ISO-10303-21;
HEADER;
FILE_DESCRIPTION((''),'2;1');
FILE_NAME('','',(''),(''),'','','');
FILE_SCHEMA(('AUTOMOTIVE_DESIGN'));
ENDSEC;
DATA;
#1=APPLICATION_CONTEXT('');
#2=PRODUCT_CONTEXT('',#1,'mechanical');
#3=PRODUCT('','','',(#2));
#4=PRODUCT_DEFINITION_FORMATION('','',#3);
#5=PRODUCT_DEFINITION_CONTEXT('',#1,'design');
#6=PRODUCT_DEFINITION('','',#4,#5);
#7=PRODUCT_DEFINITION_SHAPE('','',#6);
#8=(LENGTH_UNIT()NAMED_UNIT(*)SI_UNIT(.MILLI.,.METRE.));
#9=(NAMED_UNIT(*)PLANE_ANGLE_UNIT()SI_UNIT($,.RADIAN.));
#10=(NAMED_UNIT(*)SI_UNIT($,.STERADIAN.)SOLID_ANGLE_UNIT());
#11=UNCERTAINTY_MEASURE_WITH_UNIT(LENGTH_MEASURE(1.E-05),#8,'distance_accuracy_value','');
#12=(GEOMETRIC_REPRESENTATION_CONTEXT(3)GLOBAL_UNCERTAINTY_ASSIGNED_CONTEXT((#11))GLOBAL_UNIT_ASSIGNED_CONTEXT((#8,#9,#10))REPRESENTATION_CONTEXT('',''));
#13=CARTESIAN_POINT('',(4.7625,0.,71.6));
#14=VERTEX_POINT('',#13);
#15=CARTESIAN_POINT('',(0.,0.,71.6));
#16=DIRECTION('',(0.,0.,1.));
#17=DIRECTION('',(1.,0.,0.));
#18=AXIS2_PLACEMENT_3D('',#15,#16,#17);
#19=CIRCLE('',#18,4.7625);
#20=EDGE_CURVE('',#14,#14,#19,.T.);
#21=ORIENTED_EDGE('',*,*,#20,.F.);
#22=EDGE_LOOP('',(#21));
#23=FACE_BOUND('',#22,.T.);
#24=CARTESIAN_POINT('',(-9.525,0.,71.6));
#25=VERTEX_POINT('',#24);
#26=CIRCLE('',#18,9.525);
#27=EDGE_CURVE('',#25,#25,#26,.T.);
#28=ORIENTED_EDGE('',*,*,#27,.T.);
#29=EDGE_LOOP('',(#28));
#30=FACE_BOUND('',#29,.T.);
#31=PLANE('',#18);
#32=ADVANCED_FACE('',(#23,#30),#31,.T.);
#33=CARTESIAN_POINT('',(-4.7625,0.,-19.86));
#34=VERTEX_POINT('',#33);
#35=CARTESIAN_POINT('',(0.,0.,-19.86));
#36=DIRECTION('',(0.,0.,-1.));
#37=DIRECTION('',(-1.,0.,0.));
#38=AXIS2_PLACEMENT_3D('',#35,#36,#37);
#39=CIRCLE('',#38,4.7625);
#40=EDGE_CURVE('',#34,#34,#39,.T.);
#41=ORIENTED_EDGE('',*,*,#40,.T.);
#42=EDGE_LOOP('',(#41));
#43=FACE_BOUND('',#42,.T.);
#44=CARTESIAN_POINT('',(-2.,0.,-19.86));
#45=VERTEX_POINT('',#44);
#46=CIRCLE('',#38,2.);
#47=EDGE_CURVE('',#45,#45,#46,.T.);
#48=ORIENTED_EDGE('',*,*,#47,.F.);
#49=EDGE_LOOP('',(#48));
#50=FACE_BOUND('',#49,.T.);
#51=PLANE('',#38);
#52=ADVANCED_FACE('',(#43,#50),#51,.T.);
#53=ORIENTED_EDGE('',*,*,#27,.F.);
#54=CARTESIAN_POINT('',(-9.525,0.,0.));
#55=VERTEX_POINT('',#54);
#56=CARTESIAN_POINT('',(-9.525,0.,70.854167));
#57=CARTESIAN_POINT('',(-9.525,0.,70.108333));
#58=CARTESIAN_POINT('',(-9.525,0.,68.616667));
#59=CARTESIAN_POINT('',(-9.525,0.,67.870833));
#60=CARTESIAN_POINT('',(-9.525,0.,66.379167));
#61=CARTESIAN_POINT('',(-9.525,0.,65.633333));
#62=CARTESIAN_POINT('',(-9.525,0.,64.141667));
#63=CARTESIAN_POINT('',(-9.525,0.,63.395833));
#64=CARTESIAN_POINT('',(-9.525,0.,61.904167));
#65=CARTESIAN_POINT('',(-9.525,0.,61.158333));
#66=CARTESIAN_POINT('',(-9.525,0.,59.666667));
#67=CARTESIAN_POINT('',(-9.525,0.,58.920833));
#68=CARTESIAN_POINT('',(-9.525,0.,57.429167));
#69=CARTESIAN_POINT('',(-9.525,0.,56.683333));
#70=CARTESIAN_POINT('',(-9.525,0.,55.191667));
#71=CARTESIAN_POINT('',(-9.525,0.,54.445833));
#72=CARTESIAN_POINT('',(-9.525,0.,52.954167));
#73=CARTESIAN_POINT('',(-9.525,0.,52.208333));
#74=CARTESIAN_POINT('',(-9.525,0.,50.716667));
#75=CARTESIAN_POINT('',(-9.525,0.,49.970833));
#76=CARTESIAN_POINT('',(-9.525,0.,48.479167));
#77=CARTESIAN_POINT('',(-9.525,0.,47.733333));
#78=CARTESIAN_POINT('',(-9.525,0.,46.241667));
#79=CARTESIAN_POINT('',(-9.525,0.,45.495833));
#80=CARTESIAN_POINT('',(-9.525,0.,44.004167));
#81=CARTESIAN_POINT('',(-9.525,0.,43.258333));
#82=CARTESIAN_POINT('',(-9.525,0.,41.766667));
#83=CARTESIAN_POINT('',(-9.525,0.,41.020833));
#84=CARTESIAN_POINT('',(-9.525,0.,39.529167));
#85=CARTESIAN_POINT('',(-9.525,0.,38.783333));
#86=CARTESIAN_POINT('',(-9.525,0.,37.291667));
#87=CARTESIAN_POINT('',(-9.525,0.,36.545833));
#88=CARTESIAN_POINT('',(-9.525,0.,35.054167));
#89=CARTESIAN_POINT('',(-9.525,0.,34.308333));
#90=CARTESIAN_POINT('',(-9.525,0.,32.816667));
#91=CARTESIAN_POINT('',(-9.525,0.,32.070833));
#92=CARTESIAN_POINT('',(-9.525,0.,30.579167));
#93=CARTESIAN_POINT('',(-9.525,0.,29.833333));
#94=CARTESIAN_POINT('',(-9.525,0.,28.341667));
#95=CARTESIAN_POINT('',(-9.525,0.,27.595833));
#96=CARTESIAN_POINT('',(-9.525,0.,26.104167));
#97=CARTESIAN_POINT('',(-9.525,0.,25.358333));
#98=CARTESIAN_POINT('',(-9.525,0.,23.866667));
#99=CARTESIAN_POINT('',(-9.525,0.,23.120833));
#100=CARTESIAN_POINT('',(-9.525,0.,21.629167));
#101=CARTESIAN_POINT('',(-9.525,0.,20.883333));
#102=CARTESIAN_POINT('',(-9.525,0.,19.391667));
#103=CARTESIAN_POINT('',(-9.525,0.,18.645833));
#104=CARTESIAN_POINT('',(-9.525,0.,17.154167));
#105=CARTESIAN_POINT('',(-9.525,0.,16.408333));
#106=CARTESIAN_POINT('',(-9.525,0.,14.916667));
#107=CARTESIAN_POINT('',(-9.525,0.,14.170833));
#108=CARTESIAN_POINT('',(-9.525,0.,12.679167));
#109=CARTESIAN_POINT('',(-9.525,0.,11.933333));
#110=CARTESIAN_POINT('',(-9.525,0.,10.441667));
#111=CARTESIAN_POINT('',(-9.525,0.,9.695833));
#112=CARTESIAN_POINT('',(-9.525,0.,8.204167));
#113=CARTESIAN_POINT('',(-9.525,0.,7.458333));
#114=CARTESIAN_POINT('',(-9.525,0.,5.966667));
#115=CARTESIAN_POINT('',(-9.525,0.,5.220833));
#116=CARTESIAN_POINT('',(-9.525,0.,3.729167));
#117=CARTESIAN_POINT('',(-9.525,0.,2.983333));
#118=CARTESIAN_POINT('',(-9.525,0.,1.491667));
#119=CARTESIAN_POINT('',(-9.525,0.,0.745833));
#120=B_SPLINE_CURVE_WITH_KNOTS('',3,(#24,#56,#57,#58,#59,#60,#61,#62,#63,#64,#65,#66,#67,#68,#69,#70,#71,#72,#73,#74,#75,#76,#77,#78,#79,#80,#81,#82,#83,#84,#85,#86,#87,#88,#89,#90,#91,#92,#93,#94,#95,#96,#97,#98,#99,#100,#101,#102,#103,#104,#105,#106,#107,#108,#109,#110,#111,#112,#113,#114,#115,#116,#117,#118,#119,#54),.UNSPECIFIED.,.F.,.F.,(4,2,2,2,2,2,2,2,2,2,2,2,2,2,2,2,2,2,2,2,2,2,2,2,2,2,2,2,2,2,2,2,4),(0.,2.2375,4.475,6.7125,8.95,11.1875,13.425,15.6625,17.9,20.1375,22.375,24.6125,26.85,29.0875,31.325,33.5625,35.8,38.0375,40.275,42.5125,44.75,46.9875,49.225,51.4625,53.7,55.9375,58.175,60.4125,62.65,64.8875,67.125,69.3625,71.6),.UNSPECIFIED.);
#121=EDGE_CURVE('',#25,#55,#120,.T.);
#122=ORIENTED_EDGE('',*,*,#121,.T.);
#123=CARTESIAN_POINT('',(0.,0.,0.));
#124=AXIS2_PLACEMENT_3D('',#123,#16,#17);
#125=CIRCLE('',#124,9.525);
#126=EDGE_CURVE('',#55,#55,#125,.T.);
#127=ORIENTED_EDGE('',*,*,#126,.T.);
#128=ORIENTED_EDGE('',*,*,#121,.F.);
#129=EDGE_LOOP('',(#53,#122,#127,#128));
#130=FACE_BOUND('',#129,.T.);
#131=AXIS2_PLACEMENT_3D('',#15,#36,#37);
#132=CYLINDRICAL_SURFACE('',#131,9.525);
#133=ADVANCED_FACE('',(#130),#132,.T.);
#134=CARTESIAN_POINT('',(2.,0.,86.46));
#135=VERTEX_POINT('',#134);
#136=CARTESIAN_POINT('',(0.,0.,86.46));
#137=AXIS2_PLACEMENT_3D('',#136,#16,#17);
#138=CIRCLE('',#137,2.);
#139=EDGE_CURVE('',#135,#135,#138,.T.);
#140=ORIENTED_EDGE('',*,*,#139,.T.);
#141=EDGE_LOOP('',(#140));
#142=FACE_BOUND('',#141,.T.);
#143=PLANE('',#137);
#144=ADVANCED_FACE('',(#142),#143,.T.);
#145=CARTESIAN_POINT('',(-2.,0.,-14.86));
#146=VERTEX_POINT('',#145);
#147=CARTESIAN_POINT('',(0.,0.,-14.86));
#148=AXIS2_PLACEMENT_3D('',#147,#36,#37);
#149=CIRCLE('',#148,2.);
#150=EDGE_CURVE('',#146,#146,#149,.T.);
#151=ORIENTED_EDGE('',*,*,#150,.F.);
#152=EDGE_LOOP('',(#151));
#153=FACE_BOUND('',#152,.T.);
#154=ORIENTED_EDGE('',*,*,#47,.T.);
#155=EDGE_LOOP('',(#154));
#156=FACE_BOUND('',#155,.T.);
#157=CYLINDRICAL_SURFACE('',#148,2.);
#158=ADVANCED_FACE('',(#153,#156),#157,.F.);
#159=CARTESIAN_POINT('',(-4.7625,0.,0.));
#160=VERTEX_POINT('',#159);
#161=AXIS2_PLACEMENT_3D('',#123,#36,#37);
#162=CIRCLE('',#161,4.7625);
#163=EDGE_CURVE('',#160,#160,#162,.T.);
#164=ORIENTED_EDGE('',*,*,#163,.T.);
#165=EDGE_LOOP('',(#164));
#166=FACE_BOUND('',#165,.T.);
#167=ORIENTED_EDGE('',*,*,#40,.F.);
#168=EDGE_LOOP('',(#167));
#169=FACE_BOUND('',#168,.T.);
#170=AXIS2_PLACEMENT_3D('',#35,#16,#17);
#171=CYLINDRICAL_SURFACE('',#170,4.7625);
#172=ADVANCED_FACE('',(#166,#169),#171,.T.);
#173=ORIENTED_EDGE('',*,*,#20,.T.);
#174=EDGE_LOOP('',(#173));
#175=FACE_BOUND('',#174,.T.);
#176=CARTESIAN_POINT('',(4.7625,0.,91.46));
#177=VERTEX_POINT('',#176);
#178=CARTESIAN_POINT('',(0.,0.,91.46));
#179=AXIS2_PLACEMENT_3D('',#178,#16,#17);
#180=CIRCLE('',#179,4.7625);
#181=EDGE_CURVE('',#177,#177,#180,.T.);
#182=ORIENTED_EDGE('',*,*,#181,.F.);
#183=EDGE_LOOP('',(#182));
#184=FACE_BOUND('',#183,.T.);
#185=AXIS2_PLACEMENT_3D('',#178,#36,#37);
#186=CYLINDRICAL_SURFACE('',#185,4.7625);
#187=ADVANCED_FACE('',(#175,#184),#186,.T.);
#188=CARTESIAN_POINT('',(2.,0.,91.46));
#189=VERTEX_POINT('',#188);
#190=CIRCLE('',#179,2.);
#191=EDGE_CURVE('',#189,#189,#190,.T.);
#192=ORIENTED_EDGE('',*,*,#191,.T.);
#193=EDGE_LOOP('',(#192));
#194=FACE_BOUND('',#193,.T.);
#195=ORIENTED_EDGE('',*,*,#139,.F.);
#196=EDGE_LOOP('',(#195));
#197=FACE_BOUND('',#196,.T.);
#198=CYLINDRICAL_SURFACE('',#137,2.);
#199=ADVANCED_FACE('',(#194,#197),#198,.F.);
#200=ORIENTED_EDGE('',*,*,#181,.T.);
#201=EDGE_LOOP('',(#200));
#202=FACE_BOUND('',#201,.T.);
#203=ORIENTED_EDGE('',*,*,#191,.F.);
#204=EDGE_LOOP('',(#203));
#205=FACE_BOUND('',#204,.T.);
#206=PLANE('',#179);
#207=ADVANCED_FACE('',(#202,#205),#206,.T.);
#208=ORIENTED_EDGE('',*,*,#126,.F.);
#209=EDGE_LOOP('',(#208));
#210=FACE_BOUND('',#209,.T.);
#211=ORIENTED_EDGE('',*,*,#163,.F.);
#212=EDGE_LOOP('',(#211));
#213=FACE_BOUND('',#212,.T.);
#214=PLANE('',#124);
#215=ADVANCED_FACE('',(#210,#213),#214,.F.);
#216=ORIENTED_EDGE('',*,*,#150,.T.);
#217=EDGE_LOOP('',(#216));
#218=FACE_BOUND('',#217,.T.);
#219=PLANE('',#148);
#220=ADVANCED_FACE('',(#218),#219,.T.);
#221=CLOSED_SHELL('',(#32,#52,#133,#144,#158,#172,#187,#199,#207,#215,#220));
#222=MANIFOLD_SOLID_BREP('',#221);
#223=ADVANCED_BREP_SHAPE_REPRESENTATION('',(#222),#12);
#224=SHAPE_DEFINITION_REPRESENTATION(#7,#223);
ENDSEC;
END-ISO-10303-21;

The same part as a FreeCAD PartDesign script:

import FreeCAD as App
import Part
import Sketcher

doc = App.newDocument("Part")
params = doc.addObject("Spreadsheet::Sheet", "Params")
for row, (alias, value) in enumerate([
    ("sketch1_diameter", "19.05 mm"),
    ("pad1_length", "71.6 mm"),
    ("pad2_length", "19.86 mm"),
    ("pad3_length", "19.86 mm"),
    ("sketch4_diameter", "4 mm"),
    ("pocket1_length", "5 mm"),
    ("sketch5_diameter", "4 mm"),
    ("pocket2_length", "5 mm"),
], start=1):
    params.set(f"A{row}", alias)
    params.set(f"B{row}", "=" + value)
    params.setAlias(f"B{row}", alias)

body = doc.addObject("PartDesign::Body", "Body")

# Sketch on XY plane
sketch1 = body.newObject("Sketcher::SketchObject", "Sketch")
sketch1.AttachmentSupport = (doc.getObject("XY_Plane"), [""])
sketch1.MapMode = "FlatFace"
sketch1.addGeometry(Part.Circle(App.Vector(0, 0, 0), App.Vector(0, 0, 1), 10), False)
sketch1.addConstraint(Sketcher.Constraint("Coincident", 0, 3, -1, 1))
sketch1.addConstraint(Sketcher.Constraint("Diameter", 0, 19.05))
sketch1.setExpression("Constraints[1]", "Params.sketch1_diameter")
pad1 = body.newObject("PartDesign::Pad", "Pad")
pad1.Profile = sketch1
pad1.setExpression("Length", "Params.pad1_length")

# Sketch on XY plane
sketch2 = body.newObject("Sketcher::SketchObject", "Sketch001")
sketch2.AttachmentSupport = (doc.getObject("XY_Plane"), [""])
sketch2.MapMode = "FlatFace"
sketch2.AttachmentOffset = App.Placement(App.Vector(0, 0, 71.6), App.Rotation())
sketch2.addGeometry(Part.Circle(App.Vector(0, 0, 0), App.Vector(0, 0, 1), 4.8), False)
sketch2.addConstraint(Sketcher.Constraint("Coincident", 0, 3, -1, 1))
sketch2.addConstraint(Sketcher.Constraint("Diameter", 0, 9.525))
pad2 = body.newObject("PartDesign::Pad", "Pad001")
pad2.Profile = sketch2
pad2.setExpression("Length", "Params.pad2_length")

# Sketch on XY plane
sketch3 = body.newObject("Sketcher::SketchObject", "Sketch002")
sketch3.AttachmentSupport = (doc.getObject("XY_Plane"), [""])
sketch3.MapMode = "FlatFace"
sketch3.AttachmentOffset = App.Placement(App.Vector(0, 0, -19.86), App.Rotation())
sketch3.addGeometry(Part.Circle(App.Vector(0, 0, 0), App.Vector(0, 0, 1), 4.8), False)
sketch3.addConstraint(Sketcher.Constraint("Coincident", 0, 3, -1, 1))
sketch3.addConstraint(Sketcher.Constraint("Diameter", 0, 9.525))
pad3 = body.newObject("PartDesign::Pad", "Pad002")
pad3.Profile = sketch3
pad3.setExpression("Length", "Params.pad3_length")

# Sketch on XY plane
sketch4 = body.newObject("Sketcher::SketchObject", "Sketch003")
sketch4.AttachmentSupport = (doc.getObject("XY_Plane"), [""])
sketch4.MapMode = "FlatFace"
sketch4.AttachmentOffset = App.Placement(App.Vector(0, 0, -19.86), App.Rotation())
sketch4.addGeometry(Part.Circle(App.Vector(0, 0, 0), App.Vector(0, 0, 1), 2), False)
sketch4.addConstraint(Sketcher.Constraint("Coincident", 0, 3, -1, 1))
sketch4.addConstraint(Sketcher.Constraint("Diameter", 0, 4.0))
sketch4.setExpression("Constraints[1]", "Params.sketch4_diameter")
pocket1 = body.newObject("PartDesign::Pocket", "Pocket")
pocket1.Profile = sketch4
pocket1.setExpression("Length", "Params.pocket1_length")
pocket1.Reversed = True

# Sketch on XY plane
sketch5 = body.newObject("Sketcher::SketchObject", "Sketch004")
sketch5.AttachmentSupport = (doc.getObject("XY_Plane"), [""])
sketch5.MapMode = "FlatFace"
sketch5.AttachmentOffset = App.Placement(App.Vector(0, 0, 86.46), App.Rotation())
sketch5.addGeometry(Part.Circle(App.Vector(0, 0, 0), App.Vector(0, 0, 1), 2), False)
sketch5.addConstraint(Sketcher.Constraint("Coincident", 0, 3, -1, 1))
sketch5.addConstraint(Sketcher.Constraint("Diameter", 0, 4.0))
sketch5.setExpression("Constraints[1]", "Params.sketch5_diameter")
pocket2 = body.newObject("PartDesign::Pocket", "Pocket001")
pocket2.Profile = sketch5
pocket2.setExpression("Length", "Params.pocket2_length")
pocket2.Reversed = True

doc.recompute()
